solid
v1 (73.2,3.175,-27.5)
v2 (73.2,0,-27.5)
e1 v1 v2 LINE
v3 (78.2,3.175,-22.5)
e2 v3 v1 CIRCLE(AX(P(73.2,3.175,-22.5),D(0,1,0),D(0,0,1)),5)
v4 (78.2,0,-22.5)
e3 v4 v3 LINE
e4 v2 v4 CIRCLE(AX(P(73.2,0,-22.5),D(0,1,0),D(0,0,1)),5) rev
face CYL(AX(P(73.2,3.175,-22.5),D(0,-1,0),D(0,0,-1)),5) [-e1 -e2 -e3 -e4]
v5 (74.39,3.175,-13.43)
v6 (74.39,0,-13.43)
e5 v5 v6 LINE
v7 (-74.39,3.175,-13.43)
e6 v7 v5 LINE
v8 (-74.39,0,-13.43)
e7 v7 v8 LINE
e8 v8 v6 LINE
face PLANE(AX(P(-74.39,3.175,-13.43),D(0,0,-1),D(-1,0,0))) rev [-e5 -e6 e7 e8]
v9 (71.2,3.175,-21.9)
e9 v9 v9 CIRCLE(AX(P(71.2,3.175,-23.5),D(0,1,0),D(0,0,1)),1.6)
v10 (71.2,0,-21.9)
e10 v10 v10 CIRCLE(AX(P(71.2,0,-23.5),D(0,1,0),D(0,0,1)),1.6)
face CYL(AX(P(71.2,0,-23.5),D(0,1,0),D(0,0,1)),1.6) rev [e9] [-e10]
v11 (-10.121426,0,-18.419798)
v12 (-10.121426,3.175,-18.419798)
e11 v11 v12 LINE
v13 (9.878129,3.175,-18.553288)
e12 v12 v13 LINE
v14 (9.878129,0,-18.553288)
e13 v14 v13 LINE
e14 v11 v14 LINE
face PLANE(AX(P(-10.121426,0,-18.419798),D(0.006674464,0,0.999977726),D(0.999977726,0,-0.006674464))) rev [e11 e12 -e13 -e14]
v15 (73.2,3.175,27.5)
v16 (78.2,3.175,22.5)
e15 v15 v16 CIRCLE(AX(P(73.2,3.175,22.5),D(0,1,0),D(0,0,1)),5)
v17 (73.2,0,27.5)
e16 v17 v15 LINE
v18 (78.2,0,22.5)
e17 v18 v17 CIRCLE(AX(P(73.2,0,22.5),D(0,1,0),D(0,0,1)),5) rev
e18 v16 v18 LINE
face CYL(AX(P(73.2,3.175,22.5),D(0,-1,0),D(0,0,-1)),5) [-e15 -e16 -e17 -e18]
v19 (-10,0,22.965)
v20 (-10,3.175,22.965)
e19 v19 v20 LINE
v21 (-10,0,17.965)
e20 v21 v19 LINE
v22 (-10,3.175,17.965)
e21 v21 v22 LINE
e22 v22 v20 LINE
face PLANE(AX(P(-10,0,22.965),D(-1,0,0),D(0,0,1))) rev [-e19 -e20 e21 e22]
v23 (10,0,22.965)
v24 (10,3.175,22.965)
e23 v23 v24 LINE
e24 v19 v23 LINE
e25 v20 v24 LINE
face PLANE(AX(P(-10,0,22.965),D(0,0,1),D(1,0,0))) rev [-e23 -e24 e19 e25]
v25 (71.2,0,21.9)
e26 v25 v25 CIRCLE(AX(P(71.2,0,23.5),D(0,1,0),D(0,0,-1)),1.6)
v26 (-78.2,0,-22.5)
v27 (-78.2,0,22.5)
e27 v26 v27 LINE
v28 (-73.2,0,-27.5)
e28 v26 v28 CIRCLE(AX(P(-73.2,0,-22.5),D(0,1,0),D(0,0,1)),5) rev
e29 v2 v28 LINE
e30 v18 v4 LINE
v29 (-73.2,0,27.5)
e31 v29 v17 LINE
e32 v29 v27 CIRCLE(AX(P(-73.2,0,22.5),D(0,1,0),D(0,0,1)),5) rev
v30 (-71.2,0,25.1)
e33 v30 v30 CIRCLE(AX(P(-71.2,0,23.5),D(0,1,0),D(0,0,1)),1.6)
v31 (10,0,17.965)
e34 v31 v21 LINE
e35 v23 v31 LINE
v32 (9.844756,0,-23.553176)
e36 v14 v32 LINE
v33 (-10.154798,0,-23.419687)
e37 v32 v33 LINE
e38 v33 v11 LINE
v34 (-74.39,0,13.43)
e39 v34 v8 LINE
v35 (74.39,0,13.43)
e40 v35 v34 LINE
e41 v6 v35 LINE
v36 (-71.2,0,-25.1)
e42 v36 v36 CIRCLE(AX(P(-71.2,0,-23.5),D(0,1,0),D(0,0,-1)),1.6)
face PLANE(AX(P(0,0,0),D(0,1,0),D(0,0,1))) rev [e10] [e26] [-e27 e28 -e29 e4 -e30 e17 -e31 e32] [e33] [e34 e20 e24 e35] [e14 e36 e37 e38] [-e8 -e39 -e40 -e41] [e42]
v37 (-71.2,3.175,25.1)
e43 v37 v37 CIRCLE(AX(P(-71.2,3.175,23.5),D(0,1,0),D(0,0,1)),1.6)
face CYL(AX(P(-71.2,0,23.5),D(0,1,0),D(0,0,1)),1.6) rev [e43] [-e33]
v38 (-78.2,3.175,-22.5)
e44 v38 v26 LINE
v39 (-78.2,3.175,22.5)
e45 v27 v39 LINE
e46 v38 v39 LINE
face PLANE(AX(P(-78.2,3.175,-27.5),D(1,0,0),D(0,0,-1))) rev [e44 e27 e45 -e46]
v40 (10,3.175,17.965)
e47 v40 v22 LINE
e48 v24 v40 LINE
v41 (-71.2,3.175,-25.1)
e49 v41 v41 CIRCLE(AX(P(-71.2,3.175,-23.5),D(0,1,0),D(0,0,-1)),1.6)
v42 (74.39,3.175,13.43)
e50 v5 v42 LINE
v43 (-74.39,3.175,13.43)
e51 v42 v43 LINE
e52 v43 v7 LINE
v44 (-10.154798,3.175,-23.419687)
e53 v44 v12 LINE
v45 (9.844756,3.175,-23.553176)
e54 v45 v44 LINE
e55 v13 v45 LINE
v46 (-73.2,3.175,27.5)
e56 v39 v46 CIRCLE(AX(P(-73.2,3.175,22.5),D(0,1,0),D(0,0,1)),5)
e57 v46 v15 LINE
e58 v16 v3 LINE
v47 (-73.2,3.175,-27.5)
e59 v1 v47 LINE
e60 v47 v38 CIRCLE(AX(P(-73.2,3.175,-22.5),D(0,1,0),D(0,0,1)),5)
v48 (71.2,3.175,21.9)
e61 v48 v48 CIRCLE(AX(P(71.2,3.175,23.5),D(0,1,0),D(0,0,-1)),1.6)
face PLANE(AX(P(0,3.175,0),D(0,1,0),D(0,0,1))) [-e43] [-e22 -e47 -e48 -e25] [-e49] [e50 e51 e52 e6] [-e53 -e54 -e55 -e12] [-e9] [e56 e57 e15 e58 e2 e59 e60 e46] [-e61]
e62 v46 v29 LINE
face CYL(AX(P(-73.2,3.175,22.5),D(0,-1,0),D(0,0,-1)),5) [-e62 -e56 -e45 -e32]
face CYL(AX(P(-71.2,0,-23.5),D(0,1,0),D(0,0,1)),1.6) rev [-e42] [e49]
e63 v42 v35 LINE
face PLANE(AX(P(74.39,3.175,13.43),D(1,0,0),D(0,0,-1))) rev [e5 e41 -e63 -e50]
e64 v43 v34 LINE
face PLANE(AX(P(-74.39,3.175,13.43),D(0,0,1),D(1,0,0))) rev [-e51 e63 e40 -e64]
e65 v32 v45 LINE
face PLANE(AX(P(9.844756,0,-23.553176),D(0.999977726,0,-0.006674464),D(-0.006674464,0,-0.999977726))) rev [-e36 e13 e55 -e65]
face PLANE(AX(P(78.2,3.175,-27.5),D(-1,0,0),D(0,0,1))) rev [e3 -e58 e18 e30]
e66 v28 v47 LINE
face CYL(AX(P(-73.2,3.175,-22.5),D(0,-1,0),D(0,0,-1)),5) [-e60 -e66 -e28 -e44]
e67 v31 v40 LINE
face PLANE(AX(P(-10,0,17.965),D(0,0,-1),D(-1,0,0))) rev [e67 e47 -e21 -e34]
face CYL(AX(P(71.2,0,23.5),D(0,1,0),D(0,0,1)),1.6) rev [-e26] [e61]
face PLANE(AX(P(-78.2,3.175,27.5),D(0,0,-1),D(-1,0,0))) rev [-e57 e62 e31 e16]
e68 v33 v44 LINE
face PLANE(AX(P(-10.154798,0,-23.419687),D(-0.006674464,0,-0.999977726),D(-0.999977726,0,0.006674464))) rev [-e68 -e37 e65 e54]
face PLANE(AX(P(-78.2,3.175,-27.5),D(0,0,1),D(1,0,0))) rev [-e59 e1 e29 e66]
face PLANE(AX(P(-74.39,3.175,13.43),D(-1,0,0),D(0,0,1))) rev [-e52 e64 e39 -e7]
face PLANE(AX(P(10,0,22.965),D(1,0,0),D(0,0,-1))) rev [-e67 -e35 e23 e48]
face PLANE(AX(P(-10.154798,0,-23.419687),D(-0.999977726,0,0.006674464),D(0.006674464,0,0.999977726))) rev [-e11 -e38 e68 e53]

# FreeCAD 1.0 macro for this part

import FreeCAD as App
import Part
import Sketcher

V = App.Vector


def edges_at(feature, points):
    """Names of the edges that pass closest to the given points."""
    edges = feature.Shape.Edges
    near = lambda p: min(range(len(edges)), key=lambda i: edges[i].distToShape(Part.Vertex(*p))[0])
    return sorted({f"Edge{near(p) + 1}" for p in points})

doc = App.newDocument("Part")
body = doc.addObject("PartDesign::Body", "Body")

sketch1 = body.newObject("Sketcher::SketchObject", "Sketch")
sketch1.AttachmentSupport = (doc.getObject("XZ_Plane"), [""])
sketch1.MapMode = "FlatFace"
sketch1.addGeometry([
    Part.LineSegment(V(-78, -28, 0), V(-78, 28, 0)),
    Part.LineSegment(V(-78, 28, 0), V(78, 28, 0)),
    Part.LineSegment(V(78, 28, 0), V(78, -28, 0)),
    Part.LineSegment(V(78, -28, 0), V(-78, -28, 0)),
], False)
sketch1.addConstraint([
    Sketcher.Constraint("Coincident", 0, 2, 1, 1),
    Sketcher.Constraint("Coincident", 1, 2, 2, 1),
    Sketcher.Constraint("Coincident", 2, 2, 3, 1),
    Sketcher.Constraint("Coincident", 3, 2, 0, 1),
    Sketcher.Constraint("Vertical", 0),
    Sketcher.Constraint("Horizontal", 1),
    Sketcher.Constraint("Vertical", 2),
    Sketcher.Constraint("Horizontal", 3),
    Sketcher.Constraint("Symmetric", 0, 2, 2, 2, -1, 1),
    Sketcher.Constraint("DistanceY", 0, 1, 0, 2, 55.0),
    Sketcher.Constraint("DistanceX", 1, 1, 1, 2, 156.4),
])
pad1 = body.newObject("PartDesign::Pad", "Pad")
pad1.Profile = sketch1
pad1.Length = 3.175
pad1.Reversed = True

sketch2 = body.newObject("Sketcher::SketchObject", "Sketch001")
sketch2.AttachmentSupport = (doc.getObject("XZ_Plane"), [""])
sketch2.MapMode = "FlatFace"
sketch2.addGeometry([
    Part.LineSegment(V(-74, 13, 0), V(-74, -13, 0)),
    Part.LineSegment(V(-74, -13, 0), V(74, -13, 0)),
    Part.LineSegment(V(74, -13, 0), V(74, 13, 0)),
    Part.LineSegment(V(74, 13, 0), V(-74, 13, 0)),
], False)
sketch2.addConstraint([
    Sketcher.Constraint("Coincident", 0, 2, 1, 1),
    Sketcher.Constraint("Coincident", 1, 2, 2, 1),
    Sketcher.Constraint("Coincident", 2, 2, 3, 1),
    Sketcher.Constraint("Coincident", 3, 2, 0, 1),
    Sketcher.Constraint("Vertical", 0),
    Sketcher.Constraint("Horizontal", 1),
    Sketcher.Constraint("Vertical", 2),
    Sketcher.Constraint("Horizontal", 3),
    Sketcher.Constraint("Symmetric", 0, 2, 2, 2, -1, 1),
    Sketcher.Constraint("DistanceX", 1, 1, 1, 2, 148.78),
    Sketcher.Constraint("DistanceY", 0, 2, 0, 1, 26.86),
])
pocket1 = body.newObject("PartDesign::Pocket", "Pocket")
pocket1.Profile = sketch2
pocket1.Type = "ThroughAll"

sketch3 = body.newObject("Sketcher::SketchObject", "Sketch002")
sketch3.AttachmentSupport = (doc.getObject("XZ_Plane"), [""])
sketch3.MapMode = "FlatFace"
sketch3.AttachmentOffset = App.Placement(V(0, 0, -3.175), App.Rotation())
sketch3.addGeometry([
    Part.Circle(V(-71.2, 23.5, 0), V(0, 0, 1), 1.6),
    Part.Circle(V(-71.2, -23.5, 0), V(0, 0, 1), 1.6),
    Part.Circle(V(71.2, -23.5, 0), V(0, 0, 1), 1.6),
    Part.Circle(V(71.2, 23.5, 0), V(0, 0, 1), 1.6),
], False)
sketch3.addConstraint([
    Sketcher.Constraint("Equal", 0, 1),
    Sketcher.Constraint("Equal", 1, 2),
    Sketcher.Constraint("Equal", 2, 3),
    Sketcher.Constraint("Symmetric", 0, 3, 2, 3, -1, 1),
    Sketcher.Constraint("Symmetric", 1, 3, 3, 3, -1, 1),
    Sketcher.Constraint("Symmetric", 1, 3, 2, 3, -2),
    Sketcher.Constraint("Diameter", 0, 3.2),
    Sketcher.Constraint("DistanceY", 1, 3, 0, 3, 47.0),
    Sketcher.Constraint("DistanceX", 0, 3, -1, 1, 71.2),
])
pocket2 = body.newObject("PartDesign::Pocket", "Pocket001")
pocket2.Profile = sketch3
pocket2.Type = "ThroughAll"
pocket2.Reversed = True

sketch4 = body.newObject("Sketcher::SketchObject", "Sketch003")
sketch4.AttachmentSupport = (doc.getObject("XZ_Plane"), [""])
sketch4.MapMode = "FlatFace"
sketch4.AttachmentOffset = App.Placement(V(0, 0, -3.175), App.Rotation())
sketch4.addGeometry([
    Part.LineSegment(V(-10, 18, 0), V(-10, 23, 0)),
    Part.LineSegment(V(-10, 23, 0), V(10, 23, 0)),
    Part.LineSegment(V(10, 23, 0), V(10, 18, 0)),
    Part.LineSegment(V(10, 18, 0), V(-10, 18, 0)),
    Part.LineSegment(V(-10.2, -23.4, 0), V(-10.1, -18.4, 0)),
    Part.LineSegment(V(-10.1, -18.4, 0), V(9.9, -18.6, 0)),
    Part.LineSegment(V(9.9, -18.6, 0), V(9.8, -23.6, 0)),
    Part.LineSegment(V(9.8, -23.6, 0), V(-10.2, -23.4, 0)),
], False)
sketch4.addConstraint([
    Sketcher.Constraint("Coincident", 0, 2, 1, 1),
    Sketcher.Constraint("Coincident", 1, 2, 2, 1),
    Sketcher.Constraint("Coincident", 2, 2, 3, 1),
    Sketcher.Constraint("Coincident", 3, 2, 0, 1),
    Sketcher.Constraint("Coincident", 4, 2, 5, 1),
    Sketcher.Constraint("Coincident", 5, 2, 6, 1),
    Sketcher.Constraint("Coincident", 6, 2, 7, 1),
    Sketcher.Constraint("Coincident", 7, 2, 4, 1),
    Sketcher.Constraint("Vertical", 0),
    Sketcher.Constraint("Horizontal", 1),
    Sketcher.Constraint("Vertical", 2),
    Sketcher.Constraint("Horizontal", 3),
    Sketcher.Constraint("Perpendicular", 4, 5),
    Sketcher.Constraint("Perpendicular", 5, 6),
    Sketcher.Constraint("Perpendicular", 6, 7),
    Sketcher.Constraint("DistanceX", 1, 1, 1, 2, 20.0),
    Sketcher.Constraint("DistanceY", 0, 1, 0, 2, 5.0),
    Sketcher.Constraint("Distance", 4, 5.0),
    Sketcher.Constraint("Distance", 5, 20.0),
    Sketcher.Constraint("DistanceX", 0, 2, -1, 1, 10.0),
    Sketcher.Constraint("DistanceY", -1, 1, 0, 2, 22.965),
    Sketcher.Constraint("DistanceY", 4, 2, -1, 1, 18.419798),
    Sketcher.Constraint("DistanceX", 7, 2, -1, 1, 10.154798),
    Sketcher.Constraint("DistanceY", 7, 2, 5, 2, 4.866399),
])
pocket3 = body.newObject("PartDesign::Pocket", "Pocket002")
pocket3.Profile = sketch4
pocket3.Type = "ThroughAll"
pocket3.Reversed = True
doc.recompute()

fillet = body.newObject("PartDesign::Fillet", "Fillet")
fillet.Base = (pocket3, edges_at(pocket3, [(78.2, 1.587, 27.5), (-78.2, 1.587, 27.5), (-78.2, 1.587, -27.5)]))
fillet.Radius = 5
doc.recompute()

fillet2 = body.newObject("PartDesign::Fillet", "Fillet001")
fillet2.Base = (fillet, edges_at(fillet, [(78.2, 1.587, -27.5)]))
fillet2.Radius = 5

doc.recompute()
